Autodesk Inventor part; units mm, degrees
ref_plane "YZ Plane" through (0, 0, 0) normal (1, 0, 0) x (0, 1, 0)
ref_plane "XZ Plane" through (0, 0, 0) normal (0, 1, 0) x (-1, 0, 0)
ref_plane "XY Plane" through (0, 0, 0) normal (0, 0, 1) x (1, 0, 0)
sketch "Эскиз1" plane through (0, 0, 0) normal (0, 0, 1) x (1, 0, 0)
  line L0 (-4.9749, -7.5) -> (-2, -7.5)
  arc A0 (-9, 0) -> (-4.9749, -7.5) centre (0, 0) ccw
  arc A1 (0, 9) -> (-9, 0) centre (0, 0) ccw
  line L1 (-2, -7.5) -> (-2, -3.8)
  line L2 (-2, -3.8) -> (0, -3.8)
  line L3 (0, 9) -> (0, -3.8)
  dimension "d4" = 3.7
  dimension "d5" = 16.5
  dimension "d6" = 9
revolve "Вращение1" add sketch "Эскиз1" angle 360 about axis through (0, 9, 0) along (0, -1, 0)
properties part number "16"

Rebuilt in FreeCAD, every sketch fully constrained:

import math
import FreeCAD as App
import Part
import Sketcher

V = App.Vector
Q = App.Units.Quantity

doc = App.newDocument("Part")
body = doc.addObject("PartDesign::Body", "Body")

sketch1 = doc.addObject("Sketcher::SketchObject", "Sketch")
body.addObject(sketch1)
sketch1.AttachmentSupport = (doc.XY_Plane, [""])
sketch1.MapMode = "FlatFace"
sketch1.addGeometry([
    Part.ArcOfCircle(Part.Circle(V(0, 0, 0), V(0, 0, 1), 9), math.radians(180), math.radians(236.442888)),
    Part.LineSegment(V(-4.9749, -7.5, 0), V(-2, -7.5, 0)),
    Part.LineSegment(V(-2, -7.5, 0), V(-2, -3.8, 0)),
    Part.LineSegment(V(-2, -3.8, 0), V(0, -3.8, 0)),
    Part.LineSegment(V(0, -3.8, 0), V(0, 9, 0)),
    Part.ArcOfCircle(Part.Circle(V(0, 0, 0), V(0, 0, 1), 9), math.radians(90), math.radians(180)),
], False)
sketch1.addConstraint([
    Sketcher.Constraint("Coincident", 0, 2, 1, 1),
    Sketcher.Constraint("Coincident", 1, 2, 2, 1),
    Sketcher.Constraint("Coincident", 2, 2, 3, 1),
    Sketcher.Constraint("Coincident", 3, 2, 4, 1),
    Sketcher.Constraint("Coincident", 4, 2, 5, 1),
    Sketcher.Constraint("Tangent", 5, 2, 0, 1),
    Sketcher.Constraint("Horizontal", 1),
    Sketcher.Constraint("Vertical", 2),
    Sketcher.Constraint("Horizontal", 3),
    Sketcher.Constraint("Vertical", 4),
    Sketcher.Constraint("Coincident", 0, 3, -1, 1),
    Sketcher.Constraint("Equal", 0, 5),
    Sketcher.Constraint("PointOnObject", 3, 2, -2),
    Sketcher.Constraint("PointOnObject", 5, 2, -1),
    Sketcher.Constraint("Radius", 0, Q("9 mm")),
    Sketcher.Constraint("DistanceY", 2, 1, 2, 2, Q("3.7 mm")),
    Sketcher.Constraint("DistanceY", 1, 2, 4, 2, Q("16.5 mm")),
    Sketcher.Constraint("DistanceX", 3, 1, 3, 2, Q("2 mm")),
])
revolution = doc.addObject("PartDesign::Revolution", "Revolution")
body.addObject(revolution)
revolution.Profile = sketch1
revolution.ReferenceAxis = (sketch1, ["V_Axis"])
revolution.Angle = 360

doc.recompute()
